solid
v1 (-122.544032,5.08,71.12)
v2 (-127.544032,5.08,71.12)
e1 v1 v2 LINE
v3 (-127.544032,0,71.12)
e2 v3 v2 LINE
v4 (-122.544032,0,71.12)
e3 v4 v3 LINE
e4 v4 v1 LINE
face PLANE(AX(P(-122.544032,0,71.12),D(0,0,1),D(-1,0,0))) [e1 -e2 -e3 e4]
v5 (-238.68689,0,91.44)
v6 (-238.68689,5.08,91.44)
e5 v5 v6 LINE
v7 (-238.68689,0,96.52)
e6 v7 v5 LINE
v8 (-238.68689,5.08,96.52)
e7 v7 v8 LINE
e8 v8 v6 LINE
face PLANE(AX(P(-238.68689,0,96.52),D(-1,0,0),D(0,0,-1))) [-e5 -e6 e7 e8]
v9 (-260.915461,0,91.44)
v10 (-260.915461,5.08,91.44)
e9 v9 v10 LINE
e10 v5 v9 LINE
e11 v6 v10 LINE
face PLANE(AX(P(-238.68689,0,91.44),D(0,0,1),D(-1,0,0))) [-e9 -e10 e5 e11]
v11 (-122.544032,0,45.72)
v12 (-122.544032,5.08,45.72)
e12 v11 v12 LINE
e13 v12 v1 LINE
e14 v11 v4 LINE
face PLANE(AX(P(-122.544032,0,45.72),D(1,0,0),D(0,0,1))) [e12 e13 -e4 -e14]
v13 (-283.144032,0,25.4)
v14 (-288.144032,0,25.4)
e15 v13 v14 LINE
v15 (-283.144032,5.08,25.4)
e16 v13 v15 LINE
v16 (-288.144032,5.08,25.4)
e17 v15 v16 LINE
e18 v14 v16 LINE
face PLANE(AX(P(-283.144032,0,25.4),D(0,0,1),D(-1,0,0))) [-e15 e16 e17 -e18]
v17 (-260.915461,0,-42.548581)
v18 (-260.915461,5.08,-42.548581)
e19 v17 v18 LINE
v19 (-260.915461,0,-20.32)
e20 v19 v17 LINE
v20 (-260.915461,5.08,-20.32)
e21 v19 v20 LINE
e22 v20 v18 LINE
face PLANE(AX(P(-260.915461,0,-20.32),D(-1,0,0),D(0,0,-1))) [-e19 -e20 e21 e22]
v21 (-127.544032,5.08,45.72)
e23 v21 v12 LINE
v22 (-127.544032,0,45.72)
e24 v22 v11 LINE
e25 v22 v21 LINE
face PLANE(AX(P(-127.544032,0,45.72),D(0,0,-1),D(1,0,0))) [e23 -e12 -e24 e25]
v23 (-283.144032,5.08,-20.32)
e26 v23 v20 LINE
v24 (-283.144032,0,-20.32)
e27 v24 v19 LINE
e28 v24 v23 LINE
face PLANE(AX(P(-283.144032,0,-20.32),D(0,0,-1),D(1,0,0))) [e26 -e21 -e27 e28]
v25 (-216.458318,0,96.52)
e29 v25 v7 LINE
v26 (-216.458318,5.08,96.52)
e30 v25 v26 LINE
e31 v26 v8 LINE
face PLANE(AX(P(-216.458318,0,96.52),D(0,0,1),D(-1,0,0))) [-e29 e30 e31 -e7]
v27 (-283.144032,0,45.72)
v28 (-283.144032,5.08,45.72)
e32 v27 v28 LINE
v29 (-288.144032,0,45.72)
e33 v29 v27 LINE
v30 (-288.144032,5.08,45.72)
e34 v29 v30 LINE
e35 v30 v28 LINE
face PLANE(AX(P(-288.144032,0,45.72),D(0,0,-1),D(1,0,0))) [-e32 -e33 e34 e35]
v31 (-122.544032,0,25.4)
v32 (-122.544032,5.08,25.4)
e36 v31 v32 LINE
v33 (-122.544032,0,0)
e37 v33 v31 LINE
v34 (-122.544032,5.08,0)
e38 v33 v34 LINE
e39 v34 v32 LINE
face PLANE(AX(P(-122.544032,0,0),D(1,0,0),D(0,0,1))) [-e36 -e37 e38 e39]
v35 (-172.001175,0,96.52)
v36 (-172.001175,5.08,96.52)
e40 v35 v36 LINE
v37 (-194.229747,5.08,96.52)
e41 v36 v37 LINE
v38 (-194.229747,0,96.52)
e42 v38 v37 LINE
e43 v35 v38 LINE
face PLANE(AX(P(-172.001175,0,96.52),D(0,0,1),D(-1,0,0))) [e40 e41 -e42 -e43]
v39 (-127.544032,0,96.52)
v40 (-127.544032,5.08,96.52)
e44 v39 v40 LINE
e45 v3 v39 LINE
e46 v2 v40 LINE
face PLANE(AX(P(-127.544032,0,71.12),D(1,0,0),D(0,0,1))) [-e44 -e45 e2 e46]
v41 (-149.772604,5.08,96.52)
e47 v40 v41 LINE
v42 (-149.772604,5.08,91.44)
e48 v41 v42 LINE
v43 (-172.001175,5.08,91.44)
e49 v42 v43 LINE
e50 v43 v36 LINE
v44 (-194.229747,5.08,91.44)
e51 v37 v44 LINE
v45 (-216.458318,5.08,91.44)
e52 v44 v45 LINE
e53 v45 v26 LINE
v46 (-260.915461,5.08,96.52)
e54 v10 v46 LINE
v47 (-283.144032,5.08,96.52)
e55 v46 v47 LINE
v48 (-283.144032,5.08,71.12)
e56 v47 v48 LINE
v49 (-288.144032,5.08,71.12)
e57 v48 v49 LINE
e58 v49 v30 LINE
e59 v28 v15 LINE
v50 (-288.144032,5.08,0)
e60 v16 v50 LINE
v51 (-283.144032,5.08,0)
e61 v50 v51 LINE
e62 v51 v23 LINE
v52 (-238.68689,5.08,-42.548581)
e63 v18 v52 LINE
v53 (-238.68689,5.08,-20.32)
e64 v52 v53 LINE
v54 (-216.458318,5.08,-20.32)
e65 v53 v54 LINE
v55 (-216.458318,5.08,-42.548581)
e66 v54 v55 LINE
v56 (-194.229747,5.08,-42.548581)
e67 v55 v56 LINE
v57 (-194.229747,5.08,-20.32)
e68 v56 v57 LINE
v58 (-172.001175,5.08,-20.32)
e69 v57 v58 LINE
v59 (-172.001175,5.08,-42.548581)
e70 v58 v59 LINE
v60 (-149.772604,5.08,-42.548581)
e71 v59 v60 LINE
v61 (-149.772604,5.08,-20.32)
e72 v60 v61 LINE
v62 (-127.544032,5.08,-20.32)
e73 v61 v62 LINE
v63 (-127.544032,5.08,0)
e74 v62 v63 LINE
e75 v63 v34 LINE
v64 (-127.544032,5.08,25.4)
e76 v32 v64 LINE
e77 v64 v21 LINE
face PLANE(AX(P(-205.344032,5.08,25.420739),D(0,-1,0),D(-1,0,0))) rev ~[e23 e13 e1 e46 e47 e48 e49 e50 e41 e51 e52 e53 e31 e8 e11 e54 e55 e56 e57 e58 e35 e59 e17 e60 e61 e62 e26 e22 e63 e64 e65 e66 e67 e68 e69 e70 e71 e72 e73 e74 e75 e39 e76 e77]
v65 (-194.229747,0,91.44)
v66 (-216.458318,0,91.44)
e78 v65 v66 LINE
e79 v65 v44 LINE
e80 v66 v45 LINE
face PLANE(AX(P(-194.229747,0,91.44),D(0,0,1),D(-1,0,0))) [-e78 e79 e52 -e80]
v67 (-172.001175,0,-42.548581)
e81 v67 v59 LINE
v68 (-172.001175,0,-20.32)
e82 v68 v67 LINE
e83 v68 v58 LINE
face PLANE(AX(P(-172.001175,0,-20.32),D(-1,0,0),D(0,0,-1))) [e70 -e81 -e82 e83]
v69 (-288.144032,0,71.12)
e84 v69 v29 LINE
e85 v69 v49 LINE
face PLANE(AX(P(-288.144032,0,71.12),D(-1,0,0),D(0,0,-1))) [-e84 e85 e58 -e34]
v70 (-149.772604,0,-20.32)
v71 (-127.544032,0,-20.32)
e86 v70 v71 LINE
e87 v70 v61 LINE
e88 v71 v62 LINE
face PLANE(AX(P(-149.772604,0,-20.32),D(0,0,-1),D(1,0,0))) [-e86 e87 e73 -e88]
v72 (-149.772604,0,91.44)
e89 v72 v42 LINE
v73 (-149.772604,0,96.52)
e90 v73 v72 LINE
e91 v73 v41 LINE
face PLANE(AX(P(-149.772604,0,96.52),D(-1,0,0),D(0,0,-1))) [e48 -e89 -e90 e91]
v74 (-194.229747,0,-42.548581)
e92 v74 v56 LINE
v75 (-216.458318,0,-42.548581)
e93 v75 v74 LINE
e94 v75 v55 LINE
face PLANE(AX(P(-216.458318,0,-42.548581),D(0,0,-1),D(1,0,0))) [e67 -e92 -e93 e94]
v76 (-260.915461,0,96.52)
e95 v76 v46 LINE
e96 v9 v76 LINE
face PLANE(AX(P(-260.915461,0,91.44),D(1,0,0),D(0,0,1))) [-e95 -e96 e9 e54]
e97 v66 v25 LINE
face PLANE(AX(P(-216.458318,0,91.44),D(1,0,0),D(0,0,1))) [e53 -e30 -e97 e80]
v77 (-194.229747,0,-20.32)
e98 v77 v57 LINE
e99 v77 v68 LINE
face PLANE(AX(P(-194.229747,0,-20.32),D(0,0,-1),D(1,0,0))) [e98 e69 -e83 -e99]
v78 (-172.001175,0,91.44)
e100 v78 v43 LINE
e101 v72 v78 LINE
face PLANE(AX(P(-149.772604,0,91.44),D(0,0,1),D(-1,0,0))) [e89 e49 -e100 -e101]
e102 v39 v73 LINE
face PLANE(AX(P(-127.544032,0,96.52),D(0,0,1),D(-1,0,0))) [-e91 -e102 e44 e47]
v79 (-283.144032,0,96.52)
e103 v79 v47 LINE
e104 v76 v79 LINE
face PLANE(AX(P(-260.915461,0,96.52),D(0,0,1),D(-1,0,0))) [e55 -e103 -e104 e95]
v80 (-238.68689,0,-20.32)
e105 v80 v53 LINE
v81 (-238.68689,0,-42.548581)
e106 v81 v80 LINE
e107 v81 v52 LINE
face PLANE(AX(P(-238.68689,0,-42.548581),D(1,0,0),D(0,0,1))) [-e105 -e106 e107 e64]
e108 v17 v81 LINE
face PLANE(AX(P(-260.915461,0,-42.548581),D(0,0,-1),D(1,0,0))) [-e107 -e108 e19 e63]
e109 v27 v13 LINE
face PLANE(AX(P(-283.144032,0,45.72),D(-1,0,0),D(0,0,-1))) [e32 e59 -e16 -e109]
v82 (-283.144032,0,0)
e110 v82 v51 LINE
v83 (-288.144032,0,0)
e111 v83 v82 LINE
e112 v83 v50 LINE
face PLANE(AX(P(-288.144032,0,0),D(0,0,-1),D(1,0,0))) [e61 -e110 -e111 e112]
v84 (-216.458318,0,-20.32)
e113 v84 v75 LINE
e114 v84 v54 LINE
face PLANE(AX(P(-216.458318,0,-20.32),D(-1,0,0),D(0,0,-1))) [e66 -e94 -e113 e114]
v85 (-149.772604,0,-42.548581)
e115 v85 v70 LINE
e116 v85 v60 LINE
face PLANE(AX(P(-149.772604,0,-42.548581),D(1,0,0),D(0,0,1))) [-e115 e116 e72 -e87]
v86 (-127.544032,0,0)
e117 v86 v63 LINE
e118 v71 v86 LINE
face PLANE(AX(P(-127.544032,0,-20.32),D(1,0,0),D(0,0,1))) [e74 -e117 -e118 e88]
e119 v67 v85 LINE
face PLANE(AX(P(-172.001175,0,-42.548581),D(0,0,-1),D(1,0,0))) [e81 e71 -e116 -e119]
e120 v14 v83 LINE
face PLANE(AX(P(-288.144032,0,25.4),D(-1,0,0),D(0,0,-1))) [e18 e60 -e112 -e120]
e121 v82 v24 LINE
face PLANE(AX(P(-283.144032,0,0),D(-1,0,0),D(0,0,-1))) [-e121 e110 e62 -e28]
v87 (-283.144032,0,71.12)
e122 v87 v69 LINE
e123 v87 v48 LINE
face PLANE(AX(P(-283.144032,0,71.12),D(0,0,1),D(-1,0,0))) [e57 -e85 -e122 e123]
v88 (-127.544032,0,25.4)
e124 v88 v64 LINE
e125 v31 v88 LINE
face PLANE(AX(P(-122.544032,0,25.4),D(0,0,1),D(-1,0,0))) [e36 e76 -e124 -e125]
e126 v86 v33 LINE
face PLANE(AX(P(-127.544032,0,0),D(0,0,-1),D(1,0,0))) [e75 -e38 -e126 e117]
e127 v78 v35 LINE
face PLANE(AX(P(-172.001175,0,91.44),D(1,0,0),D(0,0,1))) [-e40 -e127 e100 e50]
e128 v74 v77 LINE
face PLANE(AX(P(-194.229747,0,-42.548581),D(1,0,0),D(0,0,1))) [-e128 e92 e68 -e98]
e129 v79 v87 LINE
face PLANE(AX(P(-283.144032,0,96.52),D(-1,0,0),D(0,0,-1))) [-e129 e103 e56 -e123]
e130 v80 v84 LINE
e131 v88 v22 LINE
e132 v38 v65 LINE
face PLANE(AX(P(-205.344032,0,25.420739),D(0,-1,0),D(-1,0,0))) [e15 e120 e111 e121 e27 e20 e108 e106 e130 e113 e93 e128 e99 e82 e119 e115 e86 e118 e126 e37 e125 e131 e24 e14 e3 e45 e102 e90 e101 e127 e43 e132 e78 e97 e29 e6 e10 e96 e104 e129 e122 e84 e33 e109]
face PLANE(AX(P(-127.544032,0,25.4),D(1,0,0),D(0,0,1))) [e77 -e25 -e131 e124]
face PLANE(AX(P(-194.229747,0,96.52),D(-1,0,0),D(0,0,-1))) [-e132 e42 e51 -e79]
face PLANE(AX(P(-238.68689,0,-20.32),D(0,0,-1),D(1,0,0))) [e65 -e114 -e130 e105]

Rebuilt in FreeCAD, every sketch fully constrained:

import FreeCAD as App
import Part
import Sketcher
from FreeCAD import Vector
Q = App.Units.Quantity

doc = App.newDocument("Part")
params = doc.addObject("Spreadsheet::Sheet", "Params")
for row, (alias, value) in enumerate([
    ("sketch1_height", "1 in"),
    ("sketch1_height2", "0.8 in"),
    ("sketch1_height3", "0.2 in"),
    ("pad1_length", "0.2 in"),
], start=1):
    params.set(f"A{row}", alias)
    params.set(f"B{row}", "=" + value)
    params.setAlias(f"B{row}", alias)

body = doc.addObject("PartDesign::Body", "Body")

sketch1 = body.newObject("Sketcher::SketchObject", "Sketch")
sketch1.AttachmentSupport = (doc.getObject("XZ_Plane"), [""])
sketch1.MapMode = "FlatFace"
sketch1.addGeometry([
    Part.LineSegment(Vector(-261, -20, 0), Vector(-283, -20, 0)),
    Part.LineSegment(Vector(-283, -20, 0), Vector(-283, 0, 0)),
    Part.LineSegment(Vector(-283, 0, 0), Vector(-288, 0, 0)),
    Part.LineSegment(Vector(-288, 0, 0), Vector(-288, 25, 0)),
    Part.LineSegment(Vector(-288, 25, 0), Vector(-283, 25, 0)),
    Part.LineSegment(Vector(-283, 25, 0), Vector(-283, 46, 0)),
    Part.LineSegment(Vector(-283, 46, 0), Vector(-288, 46, 0)),
    Part.LineSegment(Vector(-288, 46, 0), Vector(-288, 71, 0)),
    Part.LineSegment(Vector(-288, 71, 0), Vector(-283, 71, 0)),
    Part.LineSegment(Vector(-283, 71, 0), Vector(-283, 97, 0)),
    Part.LineSegment(Vector(-283, 97, 0), Vector(-261, 97, 0)),
    Part.LineSegment(Vector(-261, 97, 0), Vector(-261, 91, 0)),
    Part.LineSegment(Vector(-261, 91, 0), Vector(-239, 91, 0)),
    Part.LineSegment(Vector(-239, 91, 0), Vector(-239, 97, 0)),
    Part.LineSegment(Vector(-239, 97, 0), Vector(-216, 97, 0)),
    Part.LineSegment(Vector(-216, 97, 0), Vector(-216, 91, 0)),
    Part.LineSegment(Vector(-216, 91, 0), Vector(-194, 91, 0)),
    Part.LineSegment(Vector(-194, 91, 0), Vector(-194, 97, 0)),
    Part.LineSegment(Vector(-194, 97, 0), Vector(-172, 97, 0)),
    Part.LineSegment(Vector(-172, 97, 0), Vector(-172, 91, 0)),
    Part.LineSegment(Vector(-172, 91, 0), Vector(-150, 91, 0)),
    Part.LineSegment(Vector(-150, 91, 0), Vector(-150, 97, 0)),
    Part.LineSegment(Vector(-150, 97, 0), Vector(-128, 97, 0)),
    Part.LineSegment(Vector(-128, 97, 0), Vector(-128, 71, 0)),
    Part.LineSegment(Vector(-128, 71, 0), Vector(-123, 71, 0)),
    Part.LineSegment(Vector(-123, 71, 0), Vector(-123, 46, 0)),
    Part.LineSegment(Vector(-123, 46, 0), Vector(-128, 46, 0)),
    Part.LineSegment(Vector(-128, 46, 0), Vector(-128, 25, 0)),
    Part.LineSegment(Vector(-128, 25, 0), Vector(-123, 25, 0)),
    Part.LineSegment(Vector(-123, 25, 0), Vector(-123, 0, 0)),
    Part.LineSegment(Vector(-123, 0, 0), Vector(-128, 0, 0)),
    Part.LineSegment(Vector(-128, 0, 0), Vector(-128, -20, 0)),
    Part.LineSegment(Vector(-128, -20, 0), Vector(-150, -20, 0)),
    Part.LineSegment(Vector(-150, -20, 0), Vector(-150, -43, 0)),
    Part.LineSegment(Vector(-150, -43, 0), Vector(-172, -43, 0)),
    Part.LineSegment(Vector(-172, -43, 0), Vector(-172, -20, 0)),
    Part.LineSegment(Vector(-172, -20, 0), Vector(-194, -20, 0)),
    Part.LineSegment(Vector(-194, -20, 0), Vector(-194, -43, 0)),
    Part.LineSegment(Vector(-194, -43, 0), Vector(-216, -43, 0)),
    Part.LineSegment(Vector(-216, -43, 0), Vector(-216, -20, 0)),
    Part.LineSegment(Vector(-216, -20, 0), Vector(-239, -20, 0)),
    Part.LineSegment(Vector(-239, -20, 0), Vector(-239, -43, 0)),
    Part.LineSegment(Vector(-239, -43, 0), Vector(-261, -43, 0)),
    Part.LineSegment(Vector(-261, -43, 0), Vector(-261, -20, 0)),
], False)
sketch1.addConstraint([
    Sketcher.Constraint("Coincident", 0, 2, 1, 1),
    Sketcher.Constraint("Coincident", 1, 2, 2, 1),
    Sketcher.Constraint("Coincident", 2, 2, 3, 1),
    Sketcher.Constraint("Coincident", 3, 2, 4, 1),
    Sketcher.Constraint("Coincident", 4, 2, 5, 1),
    Sketcher.Constraint("Coincident", 5, 2, 6, 1),
    Sketcher.Constraint("Coincident", 6, 2, 7, 1),
    Sketcher.Constraint("Coincident", 7, 2, 8, 1),
    Sketcher.Constraint("Coincident", 8, 2, 9, 1),
    Sketcher.Constraint("Coincident", 9, 2, 10, 1),
    Sketcher.Constraint("Coincident", 10, 2, 11, 1),
    Sketcher.Constraint("Coincident", 11, 2, 12, 1),
    Sketcher.Constraint("Coincident", 12, 2, 13, 1),
    Sketcher.Constraint("Coincident", 13, 2, 14, 1),
    Sketcher.Constraint("Coincident", 14, 2, 15, 1),
    Sketcher.Constraint("Coincident", 15, 2, 16, 1),
    Sketcher.Constraint("Coincident", 16, 2, 17, 1),
    Sketcher.Constraint("Coincident", 17, 2, 18, 1),
    Sketcher.Constraint("Coincident", 18, 2, 19, 1),
    Sketcher.Constraint("Coincident", 19, 2, 20, 1),
    Sketcher.Constraint("Coincident", 20, 2, 21, 1),
    Sketcher.Constraint("Coincident", 21, 2, 22, 1),
    Sketcher.Constraint("Coincident", 22, 2, 23, 1),
    Sketcher.Constraint("Coincident", 23, 2, 24, 1),
    Sketcher.Constraint("Coincident", 24, 2, 25, 1),
    Sketcher.Constraint("Coincident", 25, 2, 26, 1),
    Sketcher.Constraint("Coincident", 26, 2, 27, 1),
    Sketcher.Constraint("Coincident", 27, 2, 28, 1),
    Sketcher.Constraint("Coincident", 28, 2, 29, 1),
    Sketcher.Constraint("Coincident", 29, 2, 30, 1),
    Sketcher.Constraint("Coincident", 30, 2, 31, 1),
    Sketcher.Constraint("Coincident", 31, 2, 32, 1),
    Sketcher.Constraint("Coincident", 32, 2, 33, 1),
    Sketcher.Constraint("Coincident", 33, 2, 34, 1),
    Sketcher.Constraint("Coincident", 34, 2, 35, 1),
    Sketcher.Constraint("Coincident", 35, 2, 36, 1),
    Sketcher.Constraint("Coincident", 36, 2, 37, 1),
    Sketcher.Constraint("Coincident", 37, 2, 38, 1),
    Sketcher.Constraint("Coincident", 38, 2, 39, 1),
    Sketcher.Constraint("Coincident", 39, 2, 40, 1),
    Sketcher.Constraint("Coincident", 40, 2, 41, 1),
    Sketcher.Constraint("Coincident", 41, 2, 42, 1),
    Sketcher.Constraint("Coincident", 42, 2, 43, 1),
    Sketcher.Constraint("Coincident", 43, 2, 0, 1),
    Sketcher.Constraint("Horizontal", 0),
    Sketcher.Constraint("Vertical", 1),
    Sketcher.Constraint("Horizontal", 2),
    Sketcher.Constraint("Vertical", 3),
    Sketcher.Constraint("Horizontal", 4),
    Sketcher.Constraint("Vertical", 5),
    Sketcher.Constraint("Horizontal", 6),
    Sketcher.Constraint("Vertical", 7),
    Sketcher.Constraint("Horizontal", 8),
    Sketcher.Constraint("Vertical", 9),
    Sketcher.Constraint("Horizontal", 10),
    Sketcher.Constraint("Vertical", 11),
    Sketcher.Constraint("Horizontal", 12),
    Sketcher.Constraint("Vertical", 13),
    Sketcher.Constraint("Horizontal", 14),
    Sketcher.Constraint("Vertical", 15),
    Sketcher.Constraint("Horizontal", 16),
    Sketcher.Constraint("Vertical", 17),
    Sketcher.Constraint("Horizontal", 18),
    Sketcher.Constraint("Vertical", 19),
    Sketcher.Constraint("Horizontal", 20),
    Sketcher.Constraint("Vertical", 21),
    Sketcher.Constraint("Horizontal", 22),
    Sketcher.Constraint("Vertical", 23),
    Sketcher.Constraint("Horizontal", 24),
    Sketcher.Constraint("Vertical", 25),
    Sketcher.Constraint("Horizontal", 26),
    Sketcher.Constraint("Vertical", 27),
    Sketcher.Constraint("Horizontal", 28),
    Sketcher.Constraint("Vertical", 29),
    Sketcher.Constraint("Horizontal", 30),
    Sketcher.Constraint("Vertical", 31),
    Sketcher.Constraint("Horizontal", 32),
    Sketcher.Constraint("Vertical", 33),
    Sketcher.Constraint("Horizontal", 34),
    Sketcher.Constraint("Vertical", 35),
    Sketcher.Constraint("Horizontal", 36),
    Sketcher.Constraint("Vertical", 37),
    Sketcher.Constraint("Horizontal", 38),
    Sketcher.Constraint("Vertical", 39),
    Sketcher.Constraint("Horizontal", 40),
    Sketcher.Constraint("Vertical", 41),
    Sketcher.Constraint("Horizontal", 42),
    Sketcher.Constraint("Vertical", 43),
    Sketcher.Constraint("PointOnObject", 1, 2, -1),
    Sketcher.Constraint("PointOnObject", 29, 2, -1),
    Sketcher.Constraint("Horizontal", 10, 2, 13, 2),
    Sketcher.Constraint("Horizontal", 12, 2, 15, 2),
    Sketcher.Constraint("Horizontal", 14, 2, 17, 2),
    Sketcher.Constraint("Horizontal", 16, 2, 19, 2),
    Sketcher.Constraint("Horizontal", 18, 2, 21, 2),
    Sketcher.Constraint("Horizontal", 8, 2, 23, 2),
    Sketcher.Constraint("Horizontal", 6, 2, 25, 2),
    Sketcher.Constraint("Horizontal", 4, 2, 27, 2),
    Sketcher.Constraint("Horizontal", 0, 2, 31, 2),
    Sketcher.Constraint("Horizontal", 32, 2, 35, 2),
    Sketcher.Constraint("Horizontal", 34, 2, 37, 2),
    Sketcher.Constraint("Horizontal", 36, 2, 39, 2),
    Sketcher.Constraint("Horizontal", 38, 2, 41, 2),
    Sketcher.Constraint("Vertical", 1, 2, 4, 2),
    Sketcher.Constraint("Vertical", 3, 2, 6, 2),
    Sketcher.Constraint("Vertical", 5, 2, 8, 2),
    Sketcher.Constraint("Vertical", 23, 2, 26, 2),
    Sketcher.Constraint("Vertical", 25, 2, 28, 2),
    Sketcher.Constraint("Vertical", 27, 2, 30, 2),
    Sketcher.Constraint("Vertical", 21, 2, 32, 2),
    Sketcher.Constraint("Vertical", 19, 2, 34, 2),
    Sketcher.Constraint("Vertical", 17, 2, 36, 2),
    Sketcher.Constraint("Vertical", 15, 2, 38, 2),
    Sketcher.Constraint("Vertical", 13, 2, 40, 2),
    Sketcher.Constraint("Vertical", 11, 2, 42, 2),
    Sketcher.Constraint("Equal", 10, 12),
    Sketcher.Constraint("Equal", 12, 14),
    Sketcher.Constraint("Equal", 14, 16),
    Sketcher.Constraint("Equal", 16, 18),
    Sketcher.Constraint("Equal", 18, 20),
    Sketcher.Constraint("Equal", 20, 22),
    Sketcher.Constraint("Equal", 8, 24),
    Sketcher.Constraint("Equal", 1, 5),
    Sketcher.Constraint("Equal", 3, 7),
    Sketcher.Constraint("Equal", 7, 9),
    Sketcher.Constraint("DistanceY", 3, 1, 3, 2, Q("1 in")),
    Sketcher.Constraint("DistanceY", 1, 1, 1, 2, Q("0.8 in")),
    Sketcher.Constraint("DistanceY", 11, 2, 11, 1, Q("0.2 in")),
    Sketcher.Constraint("DistanceX", 2, 2, 2, 1, 5.0),
    Sketcher.Constraint("DistanceX", 18, 2, -1, 1, Q("6.7716998 in")),
    Sketcher.Constraint("DistanceX", 0, 2, 0, 1, 22.228571),
    Sketcher.Constraint("DistanceY", 33, 2, 33, 1, 22.228581),
])
sketch1.setExpression("Constraints[125]", "Params.sketch1_height")
sketch1.setExpression("Constraints[126]", "Params.sketch1_height2")
sketch1.setExpression("Constraints[127]", "Params.sketch1_height3")
pad1 = body.newObject("PartDesign::Pad", "Pad")
pad1.Profile = sketch1
pad1.setExpression("Length", "Params.pad1_length")
pad1.Reversed = True

doc.recompute()
